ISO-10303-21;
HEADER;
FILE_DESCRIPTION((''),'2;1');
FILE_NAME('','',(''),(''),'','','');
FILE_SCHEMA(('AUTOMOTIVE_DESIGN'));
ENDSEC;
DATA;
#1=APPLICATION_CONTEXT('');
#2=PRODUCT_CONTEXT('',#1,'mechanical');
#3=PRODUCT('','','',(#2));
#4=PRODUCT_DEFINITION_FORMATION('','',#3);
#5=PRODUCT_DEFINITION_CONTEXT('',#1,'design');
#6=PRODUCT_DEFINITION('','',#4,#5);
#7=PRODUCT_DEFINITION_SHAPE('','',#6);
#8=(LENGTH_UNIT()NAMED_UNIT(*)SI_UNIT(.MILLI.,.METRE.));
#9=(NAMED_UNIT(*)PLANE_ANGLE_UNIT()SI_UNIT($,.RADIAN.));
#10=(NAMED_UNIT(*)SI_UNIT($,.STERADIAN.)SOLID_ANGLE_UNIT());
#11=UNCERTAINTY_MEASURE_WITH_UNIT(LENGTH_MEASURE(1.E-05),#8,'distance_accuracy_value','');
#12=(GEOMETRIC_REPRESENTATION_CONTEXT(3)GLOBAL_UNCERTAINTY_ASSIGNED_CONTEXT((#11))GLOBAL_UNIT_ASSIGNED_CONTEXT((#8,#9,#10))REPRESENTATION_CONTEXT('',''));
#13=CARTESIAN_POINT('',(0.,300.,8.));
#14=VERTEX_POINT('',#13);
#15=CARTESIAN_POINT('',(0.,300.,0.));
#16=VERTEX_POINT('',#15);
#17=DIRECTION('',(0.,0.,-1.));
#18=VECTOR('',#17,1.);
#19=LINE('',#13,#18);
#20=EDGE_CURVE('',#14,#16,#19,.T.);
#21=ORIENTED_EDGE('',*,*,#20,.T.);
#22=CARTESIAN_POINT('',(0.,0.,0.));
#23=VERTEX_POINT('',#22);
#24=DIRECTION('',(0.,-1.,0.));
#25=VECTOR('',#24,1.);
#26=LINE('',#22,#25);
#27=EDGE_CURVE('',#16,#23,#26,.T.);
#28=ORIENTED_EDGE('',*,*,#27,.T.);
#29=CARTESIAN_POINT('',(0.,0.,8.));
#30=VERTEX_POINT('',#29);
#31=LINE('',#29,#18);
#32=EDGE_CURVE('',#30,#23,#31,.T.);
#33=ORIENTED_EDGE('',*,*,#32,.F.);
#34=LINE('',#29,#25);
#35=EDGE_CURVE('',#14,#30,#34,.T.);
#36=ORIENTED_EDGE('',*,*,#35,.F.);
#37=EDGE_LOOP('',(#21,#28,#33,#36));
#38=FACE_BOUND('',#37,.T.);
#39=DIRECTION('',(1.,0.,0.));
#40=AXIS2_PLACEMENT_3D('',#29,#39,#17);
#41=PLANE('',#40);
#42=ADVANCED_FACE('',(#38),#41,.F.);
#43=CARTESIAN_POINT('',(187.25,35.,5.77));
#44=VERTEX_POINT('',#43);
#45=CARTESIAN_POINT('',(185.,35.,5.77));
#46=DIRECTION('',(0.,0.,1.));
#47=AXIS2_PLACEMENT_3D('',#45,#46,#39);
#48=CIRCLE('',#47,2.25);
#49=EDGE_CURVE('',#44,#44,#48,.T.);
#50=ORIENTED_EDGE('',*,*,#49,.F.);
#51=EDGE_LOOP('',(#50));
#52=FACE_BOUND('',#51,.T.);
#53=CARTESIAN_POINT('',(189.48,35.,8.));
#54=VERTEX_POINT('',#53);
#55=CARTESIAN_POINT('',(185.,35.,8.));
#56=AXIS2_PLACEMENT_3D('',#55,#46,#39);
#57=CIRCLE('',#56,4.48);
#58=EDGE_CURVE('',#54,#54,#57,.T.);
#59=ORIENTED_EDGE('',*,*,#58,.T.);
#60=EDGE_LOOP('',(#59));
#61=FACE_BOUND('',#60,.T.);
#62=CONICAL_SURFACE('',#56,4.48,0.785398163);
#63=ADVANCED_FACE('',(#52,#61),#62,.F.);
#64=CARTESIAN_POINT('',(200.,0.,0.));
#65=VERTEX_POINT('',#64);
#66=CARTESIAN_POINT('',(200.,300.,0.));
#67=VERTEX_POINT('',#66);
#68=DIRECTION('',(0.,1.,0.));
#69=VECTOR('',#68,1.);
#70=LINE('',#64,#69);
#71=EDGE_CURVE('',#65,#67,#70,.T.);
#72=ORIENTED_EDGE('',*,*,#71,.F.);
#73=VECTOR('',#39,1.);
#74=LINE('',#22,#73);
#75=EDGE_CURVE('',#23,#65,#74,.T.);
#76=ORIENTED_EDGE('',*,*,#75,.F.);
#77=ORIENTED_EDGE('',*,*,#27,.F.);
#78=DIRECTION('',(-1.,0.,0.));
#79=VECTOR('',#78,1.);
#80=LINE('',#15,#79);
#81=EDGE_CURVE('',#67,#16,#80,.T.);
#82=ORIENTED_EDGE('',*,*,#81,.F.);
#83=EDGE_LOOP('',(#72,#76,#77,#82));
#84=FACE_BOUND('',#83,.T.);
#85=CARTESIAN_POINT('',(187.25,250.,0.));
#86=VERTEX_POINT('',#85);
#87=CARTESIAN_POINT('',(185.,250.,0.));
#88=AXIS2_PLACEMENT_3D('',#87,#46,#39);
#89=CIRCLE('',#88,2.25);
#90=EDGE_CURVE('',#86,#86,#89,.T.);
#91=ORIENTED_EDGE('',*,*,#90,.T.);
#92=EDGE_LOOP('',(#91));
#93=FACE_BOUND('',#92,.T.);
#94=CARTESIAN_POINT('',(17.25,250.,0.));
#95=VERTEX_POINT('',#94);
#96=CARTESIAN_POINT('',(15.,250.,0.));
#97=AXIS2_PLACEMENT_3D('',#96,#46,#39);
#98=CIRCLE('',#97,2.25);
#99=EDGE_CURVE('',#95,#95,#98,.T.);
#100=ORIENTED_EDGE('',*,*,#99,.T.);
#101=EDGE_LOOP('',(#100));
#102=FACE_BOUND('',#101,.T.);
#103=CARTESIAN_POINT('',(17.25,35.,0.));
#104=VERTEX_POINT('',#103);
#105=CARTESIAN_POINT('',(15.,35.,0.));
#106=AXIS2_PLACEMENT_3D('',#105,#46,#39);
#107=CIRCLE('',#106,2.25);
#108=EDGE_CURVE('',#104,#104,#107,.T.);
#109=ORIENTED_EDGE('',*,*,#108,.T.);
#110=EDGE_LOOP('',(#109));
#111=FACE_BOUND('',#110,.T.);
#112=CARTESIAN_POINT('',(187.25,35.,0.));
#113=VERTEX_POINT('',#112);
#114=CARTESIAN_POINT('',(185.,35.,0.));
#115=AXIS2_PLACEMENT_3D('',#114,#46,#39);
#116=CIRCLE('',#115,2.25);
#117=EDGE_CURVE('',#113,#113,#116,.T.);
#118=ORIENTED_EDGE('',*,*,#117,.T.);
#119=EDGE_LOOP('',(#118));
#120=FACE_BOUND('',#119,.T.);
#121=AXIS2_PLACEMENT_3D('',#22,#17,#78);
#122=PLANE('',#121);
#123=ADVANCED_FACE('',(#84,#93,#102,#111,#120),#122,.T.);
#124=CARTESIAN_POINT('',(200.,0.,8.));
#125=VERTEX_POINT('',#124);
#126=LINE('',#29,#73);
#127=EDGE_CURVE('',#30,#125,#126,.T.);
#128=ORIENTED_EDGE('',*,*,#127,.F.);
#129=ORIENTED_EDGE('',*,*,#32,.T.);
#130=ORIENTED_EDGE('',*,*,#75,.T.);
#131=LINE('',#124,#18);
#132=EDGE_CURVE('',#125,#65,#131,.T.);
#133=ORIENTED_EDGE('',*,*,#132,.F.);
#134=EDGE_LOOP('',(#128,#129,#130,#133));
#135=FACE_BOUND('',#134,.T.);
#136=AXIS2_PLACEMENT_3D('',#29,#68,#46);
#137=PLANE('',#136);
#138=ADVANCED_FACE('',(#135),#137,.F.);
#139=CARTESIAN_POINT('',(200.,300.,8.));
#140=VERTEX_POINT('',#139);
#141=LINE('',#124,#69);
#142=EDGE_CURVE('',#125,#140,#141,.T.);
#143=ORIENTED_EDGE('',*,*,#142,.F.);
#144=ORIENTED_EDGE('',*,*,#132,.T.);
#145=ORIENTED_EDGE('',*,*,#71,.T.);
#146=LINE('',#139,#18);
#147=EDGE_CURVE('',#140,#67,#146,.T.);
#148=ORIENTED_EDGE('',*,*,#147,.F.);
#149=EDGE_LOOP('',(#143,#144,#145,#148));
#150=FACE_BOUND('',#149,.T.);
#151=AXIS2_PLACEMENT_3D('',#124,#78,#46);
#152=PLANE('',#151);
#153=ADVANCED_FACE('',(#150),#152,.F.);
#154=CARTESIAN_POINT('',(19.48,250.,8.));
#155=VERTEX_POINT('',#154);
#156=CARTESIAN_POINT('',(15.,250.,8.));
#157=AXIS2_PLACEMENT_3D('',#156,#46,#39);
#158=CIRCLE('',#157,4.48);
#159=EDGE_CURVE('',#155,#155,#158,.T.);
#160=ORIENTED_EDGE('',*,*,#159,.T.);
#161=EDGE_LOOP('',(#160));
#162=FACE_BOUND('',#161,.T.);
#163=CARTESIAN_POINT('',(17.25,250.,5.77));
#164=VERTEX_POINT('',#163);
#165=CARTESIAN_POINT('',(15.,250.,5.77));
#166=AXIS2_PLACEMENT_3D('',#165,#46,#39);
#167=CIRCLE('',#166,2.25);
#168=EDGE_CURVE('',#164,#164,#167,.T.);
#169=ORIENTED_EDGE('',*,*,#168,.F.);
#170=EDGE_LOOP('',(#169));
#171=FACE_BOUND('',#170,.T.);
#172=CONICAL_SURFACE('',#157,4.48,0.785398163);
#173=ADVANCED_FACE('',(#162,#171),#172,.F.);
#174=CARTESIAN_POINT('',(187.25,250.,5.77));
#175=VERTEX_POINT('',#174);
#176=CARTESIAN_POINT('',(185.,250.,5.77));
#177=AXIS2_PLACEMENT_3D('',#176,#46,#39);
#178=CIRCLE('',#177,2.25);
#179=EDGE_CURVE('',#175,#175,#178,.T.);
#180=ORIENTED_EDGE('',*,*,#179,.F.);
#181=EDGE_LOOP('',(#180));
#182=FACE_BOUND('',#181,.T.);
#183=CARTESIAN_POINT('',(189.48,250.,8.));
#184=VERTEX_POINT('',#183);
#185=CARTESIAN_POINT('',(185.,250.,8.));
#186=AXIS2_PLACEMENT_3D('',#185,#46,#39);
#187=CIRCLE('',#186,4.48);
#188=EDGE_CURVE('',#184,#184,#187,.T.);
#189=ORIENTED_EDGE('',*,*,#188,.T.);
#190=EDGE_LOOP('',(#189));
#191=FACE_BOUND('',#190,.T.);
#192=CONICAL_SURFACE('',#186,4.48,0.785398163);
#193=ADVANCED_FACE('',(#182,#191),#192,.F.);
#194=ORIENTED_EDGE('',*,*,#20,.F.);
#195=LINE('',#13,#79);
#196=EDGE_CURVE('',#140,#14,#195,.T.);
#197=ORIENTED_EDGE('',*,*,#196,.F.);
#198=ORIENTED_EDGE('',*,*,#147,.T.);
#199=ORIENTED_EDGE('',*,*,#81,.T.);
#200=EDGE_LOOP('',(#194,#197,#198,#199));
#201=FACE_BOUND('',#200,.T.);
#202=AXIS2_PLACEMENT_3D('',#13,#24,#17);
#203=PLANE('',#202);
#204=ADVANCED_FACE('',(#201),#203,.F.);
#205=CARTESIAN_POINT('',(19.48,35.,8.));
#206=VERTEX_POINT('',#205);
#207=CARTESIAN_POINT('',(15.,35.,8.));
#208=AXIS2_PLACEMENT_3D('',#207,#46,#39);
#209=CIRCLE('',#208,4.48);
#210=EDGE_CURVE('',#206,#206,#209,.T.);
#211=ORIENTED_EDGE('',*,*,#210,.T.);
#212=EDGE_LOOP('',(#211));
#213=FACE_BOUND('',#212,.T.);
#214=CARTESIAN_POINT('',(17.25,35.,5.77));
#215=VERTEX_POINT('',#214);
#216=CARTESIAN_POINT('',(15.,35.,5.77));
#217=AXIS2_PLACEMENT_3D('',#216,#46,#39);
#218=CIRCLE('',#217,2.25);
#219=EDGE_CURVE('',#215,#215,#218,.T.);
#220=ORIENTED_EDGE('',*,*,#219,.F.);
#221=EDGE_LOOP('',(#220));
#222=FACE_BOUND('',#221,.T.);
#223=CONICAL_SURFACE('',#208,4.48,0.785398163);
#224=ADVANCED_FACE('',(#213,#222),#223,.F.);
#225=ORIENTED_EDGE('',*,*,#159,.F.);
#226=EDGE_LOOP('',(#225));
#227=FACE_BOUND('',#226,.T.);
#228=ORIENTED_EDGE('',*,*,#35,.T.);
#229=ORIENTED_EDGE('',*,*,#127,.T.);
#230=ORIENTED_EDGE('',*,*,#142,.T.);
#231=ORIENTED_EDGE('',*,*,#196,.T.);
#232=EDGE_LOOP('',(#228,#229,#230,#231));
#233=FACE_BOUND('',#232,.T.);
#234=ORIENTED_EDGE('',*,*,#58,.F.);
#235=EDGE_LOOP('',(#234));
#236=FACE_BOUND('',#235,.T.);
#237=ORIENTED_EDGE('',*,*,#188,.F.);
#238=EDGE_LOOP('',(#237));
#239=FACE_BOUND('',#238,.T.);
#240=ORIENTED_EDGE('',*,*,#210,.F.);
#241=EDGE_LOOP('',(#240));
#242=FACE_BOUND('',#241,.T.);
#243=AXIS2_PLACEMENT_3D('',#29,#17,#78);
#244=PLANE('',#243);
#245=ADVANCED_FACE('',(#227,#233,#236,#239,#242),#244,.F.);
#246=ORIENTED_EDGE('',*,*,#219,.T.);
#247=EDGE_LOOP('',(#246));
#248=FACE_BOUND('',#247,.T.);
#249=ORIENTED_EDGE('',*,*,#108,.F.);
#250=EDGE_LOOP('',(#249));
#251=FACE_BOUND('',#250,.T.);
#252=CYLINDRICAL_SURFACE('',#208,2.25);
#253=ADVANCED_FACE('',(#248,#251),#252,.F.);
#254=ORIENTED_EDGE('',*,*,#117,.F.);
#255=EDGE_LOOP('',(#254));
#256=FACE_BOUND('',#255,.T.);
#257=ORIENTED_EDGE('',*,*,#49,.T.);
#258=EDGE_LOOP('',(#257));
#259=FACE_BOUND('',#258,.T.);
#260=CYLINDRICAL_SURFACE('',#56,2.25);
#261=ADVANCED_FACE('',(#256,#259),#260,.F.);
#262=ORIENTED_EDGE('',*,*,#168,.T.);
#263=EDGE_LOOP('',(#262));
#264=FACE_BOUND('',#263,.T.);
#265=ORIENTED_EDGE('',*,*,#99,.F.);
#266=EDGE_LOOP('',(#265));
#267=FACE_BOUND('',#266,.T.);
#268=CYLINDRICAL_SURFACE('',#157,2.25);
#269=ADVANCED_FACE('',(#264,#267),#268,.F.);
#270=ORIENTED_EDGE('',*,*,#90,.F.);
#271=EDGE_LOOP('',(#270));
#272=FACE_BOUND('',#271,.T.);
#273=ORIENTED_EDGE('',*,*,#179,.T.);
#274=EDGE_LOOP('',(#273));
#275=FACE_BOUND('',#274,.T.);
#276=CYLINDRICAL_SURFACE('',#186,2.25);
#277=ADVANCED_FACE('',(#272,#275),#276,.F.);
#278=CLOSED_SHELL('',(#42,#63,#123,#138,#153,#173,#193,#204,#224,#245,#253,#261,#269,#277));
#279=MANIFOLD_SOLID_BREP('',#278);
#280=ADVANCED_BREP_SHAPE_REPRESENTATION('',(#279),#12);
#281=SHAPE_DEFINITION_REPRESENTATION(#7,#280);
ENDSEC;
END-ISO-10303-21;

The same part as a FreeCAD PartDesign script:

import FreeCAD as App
import Part
import Sketcher

V = App.Vector
Q = App.Units.Quantity


def add_polygon(sketch, points):
    """Adds a closed chain of lines whose ends are joined by coincident constraints."""
    first, n = sketch.GeometryCount, len(points)
    for a, b in zip(points, points[1:] + points[:1]):
        sketch.addGeometry(Part.LineSegment(App.Vector(*a, 0), App.Vector(*b, 0)), False)
    for i in range(n):
        sketch.addConstraint(Sketcher.Constraint("Coincident", first + i, 2, first + (i + 1) % n, 1))

doc = App.newDocument("Part")
body = doc.addObject("PartDesign::Body", "Body")

# Sketch on XY plane
sketch1 = doc.addObject("Sketcher::SketchObject", "Sketch")
body.addObject(sketch1)
sketch1.AttachmentSupport = (doc.XY_Plane, [""])
sketch1.MapMode = "FlatFace"
add_polygon(sketch1, [(0, 300), (0, 0), (200, 0), (200, 300)])  # lines 0-3
sketch1.addConstraint([
    Sketcher.Constraint("Vertical", 0),
    Sketcher.Constraint("Horizontal", 1),
    Sketcher.Constraint("Vertical", 2),
    Sketcher.Constraint("Horizontal", 3),
    Sketcher.Constraint("Coincident", 0, 2, -1, 1),
    Sketcher.Constraint("DistanceX", 1, 1, 1, 2, Q("200 mm")),
    Sketcher.Constraint("DistanceY", 0, 2, 0, 1, Q("300 mm")),
])
pad1 = doc.addObject("PartDesign::Pad", "Pad")
body.addObject(pad1)
pad1.Profile = sketch1
pad1.Length = 8

# Sketch on XY plane
sketch2 = doc.addObject("Sketcher::SketchObject", "Sketch001")
body.addObject(sketch2)
sketch2.AttachmentSupport = (doc.XY_Plane, [""])
sketch2.MapMode = "FlatFace"
sketch2.AttachmentOffset = App.Placement(V(0, 0, 8), App.Rotation())
sketch2.addGeometry([
    Part.Circle(V(15, 250, 0), V(0, 0, 1), 2.25),
    Part.Circle(V(185, 250, 0), V(0, 0, 1), 2.25),
    Part.Circle(V(15, 35, 0), V(0, 0, 1), 2.25),
    Part.Circle(V(185, 35, 0), V(0, 0, 1), 2.25),
], False)
sketch2.addConstraint([
    Sketcher.Constraint("Equal", 0, 1),
    Sketcher.Constraint("Equal", 1, 2),
    Sketcher.Constraint("Equal", 2, 3),
    Sketcher.Constraint("Horizontal", 0, 3, 1, 3),
    Sketcher.Constraint("Horizontal", 2, 3, 3, 3),
    Sketcher.Constraint("Vertical", 0, 3, 2, 3),
    Sketcher.Constraint("Vertical", 1, 3, 3, 3),
    Sketcher.Constraint("Diameter", 0, Q("4.5 mm")),
    Sketcher.Constraint("DistanceX", -1, 1, 0, 3, Q("15 mm")),
    Sketcher.Constraint("DistanceY", -1, 1, 0, 3, Q("250 mm")),
    Sketcher.Constraint("DistanceX", -1, 1, 1, 3, Q("185 mm")),
    Sketcher.Constraint("DistanceY", -1, 1, 2, 3, Q("35 mm")),
])
doc.recompute()
hole = doc.addObject("PartDesign::Hole", "Hole")
body.addObject(hole)
hole.Profile = sketch2
hole.ThreadType = "None"
hole.Diameter = 4.5
hole.DepthType = "ThroughAll"
hole.HoleCutType = "Countersink"
hole.HoleCutDiameter = 8.96
hole.HoleCutCountersinkAngle = 90

doc.recompute()
